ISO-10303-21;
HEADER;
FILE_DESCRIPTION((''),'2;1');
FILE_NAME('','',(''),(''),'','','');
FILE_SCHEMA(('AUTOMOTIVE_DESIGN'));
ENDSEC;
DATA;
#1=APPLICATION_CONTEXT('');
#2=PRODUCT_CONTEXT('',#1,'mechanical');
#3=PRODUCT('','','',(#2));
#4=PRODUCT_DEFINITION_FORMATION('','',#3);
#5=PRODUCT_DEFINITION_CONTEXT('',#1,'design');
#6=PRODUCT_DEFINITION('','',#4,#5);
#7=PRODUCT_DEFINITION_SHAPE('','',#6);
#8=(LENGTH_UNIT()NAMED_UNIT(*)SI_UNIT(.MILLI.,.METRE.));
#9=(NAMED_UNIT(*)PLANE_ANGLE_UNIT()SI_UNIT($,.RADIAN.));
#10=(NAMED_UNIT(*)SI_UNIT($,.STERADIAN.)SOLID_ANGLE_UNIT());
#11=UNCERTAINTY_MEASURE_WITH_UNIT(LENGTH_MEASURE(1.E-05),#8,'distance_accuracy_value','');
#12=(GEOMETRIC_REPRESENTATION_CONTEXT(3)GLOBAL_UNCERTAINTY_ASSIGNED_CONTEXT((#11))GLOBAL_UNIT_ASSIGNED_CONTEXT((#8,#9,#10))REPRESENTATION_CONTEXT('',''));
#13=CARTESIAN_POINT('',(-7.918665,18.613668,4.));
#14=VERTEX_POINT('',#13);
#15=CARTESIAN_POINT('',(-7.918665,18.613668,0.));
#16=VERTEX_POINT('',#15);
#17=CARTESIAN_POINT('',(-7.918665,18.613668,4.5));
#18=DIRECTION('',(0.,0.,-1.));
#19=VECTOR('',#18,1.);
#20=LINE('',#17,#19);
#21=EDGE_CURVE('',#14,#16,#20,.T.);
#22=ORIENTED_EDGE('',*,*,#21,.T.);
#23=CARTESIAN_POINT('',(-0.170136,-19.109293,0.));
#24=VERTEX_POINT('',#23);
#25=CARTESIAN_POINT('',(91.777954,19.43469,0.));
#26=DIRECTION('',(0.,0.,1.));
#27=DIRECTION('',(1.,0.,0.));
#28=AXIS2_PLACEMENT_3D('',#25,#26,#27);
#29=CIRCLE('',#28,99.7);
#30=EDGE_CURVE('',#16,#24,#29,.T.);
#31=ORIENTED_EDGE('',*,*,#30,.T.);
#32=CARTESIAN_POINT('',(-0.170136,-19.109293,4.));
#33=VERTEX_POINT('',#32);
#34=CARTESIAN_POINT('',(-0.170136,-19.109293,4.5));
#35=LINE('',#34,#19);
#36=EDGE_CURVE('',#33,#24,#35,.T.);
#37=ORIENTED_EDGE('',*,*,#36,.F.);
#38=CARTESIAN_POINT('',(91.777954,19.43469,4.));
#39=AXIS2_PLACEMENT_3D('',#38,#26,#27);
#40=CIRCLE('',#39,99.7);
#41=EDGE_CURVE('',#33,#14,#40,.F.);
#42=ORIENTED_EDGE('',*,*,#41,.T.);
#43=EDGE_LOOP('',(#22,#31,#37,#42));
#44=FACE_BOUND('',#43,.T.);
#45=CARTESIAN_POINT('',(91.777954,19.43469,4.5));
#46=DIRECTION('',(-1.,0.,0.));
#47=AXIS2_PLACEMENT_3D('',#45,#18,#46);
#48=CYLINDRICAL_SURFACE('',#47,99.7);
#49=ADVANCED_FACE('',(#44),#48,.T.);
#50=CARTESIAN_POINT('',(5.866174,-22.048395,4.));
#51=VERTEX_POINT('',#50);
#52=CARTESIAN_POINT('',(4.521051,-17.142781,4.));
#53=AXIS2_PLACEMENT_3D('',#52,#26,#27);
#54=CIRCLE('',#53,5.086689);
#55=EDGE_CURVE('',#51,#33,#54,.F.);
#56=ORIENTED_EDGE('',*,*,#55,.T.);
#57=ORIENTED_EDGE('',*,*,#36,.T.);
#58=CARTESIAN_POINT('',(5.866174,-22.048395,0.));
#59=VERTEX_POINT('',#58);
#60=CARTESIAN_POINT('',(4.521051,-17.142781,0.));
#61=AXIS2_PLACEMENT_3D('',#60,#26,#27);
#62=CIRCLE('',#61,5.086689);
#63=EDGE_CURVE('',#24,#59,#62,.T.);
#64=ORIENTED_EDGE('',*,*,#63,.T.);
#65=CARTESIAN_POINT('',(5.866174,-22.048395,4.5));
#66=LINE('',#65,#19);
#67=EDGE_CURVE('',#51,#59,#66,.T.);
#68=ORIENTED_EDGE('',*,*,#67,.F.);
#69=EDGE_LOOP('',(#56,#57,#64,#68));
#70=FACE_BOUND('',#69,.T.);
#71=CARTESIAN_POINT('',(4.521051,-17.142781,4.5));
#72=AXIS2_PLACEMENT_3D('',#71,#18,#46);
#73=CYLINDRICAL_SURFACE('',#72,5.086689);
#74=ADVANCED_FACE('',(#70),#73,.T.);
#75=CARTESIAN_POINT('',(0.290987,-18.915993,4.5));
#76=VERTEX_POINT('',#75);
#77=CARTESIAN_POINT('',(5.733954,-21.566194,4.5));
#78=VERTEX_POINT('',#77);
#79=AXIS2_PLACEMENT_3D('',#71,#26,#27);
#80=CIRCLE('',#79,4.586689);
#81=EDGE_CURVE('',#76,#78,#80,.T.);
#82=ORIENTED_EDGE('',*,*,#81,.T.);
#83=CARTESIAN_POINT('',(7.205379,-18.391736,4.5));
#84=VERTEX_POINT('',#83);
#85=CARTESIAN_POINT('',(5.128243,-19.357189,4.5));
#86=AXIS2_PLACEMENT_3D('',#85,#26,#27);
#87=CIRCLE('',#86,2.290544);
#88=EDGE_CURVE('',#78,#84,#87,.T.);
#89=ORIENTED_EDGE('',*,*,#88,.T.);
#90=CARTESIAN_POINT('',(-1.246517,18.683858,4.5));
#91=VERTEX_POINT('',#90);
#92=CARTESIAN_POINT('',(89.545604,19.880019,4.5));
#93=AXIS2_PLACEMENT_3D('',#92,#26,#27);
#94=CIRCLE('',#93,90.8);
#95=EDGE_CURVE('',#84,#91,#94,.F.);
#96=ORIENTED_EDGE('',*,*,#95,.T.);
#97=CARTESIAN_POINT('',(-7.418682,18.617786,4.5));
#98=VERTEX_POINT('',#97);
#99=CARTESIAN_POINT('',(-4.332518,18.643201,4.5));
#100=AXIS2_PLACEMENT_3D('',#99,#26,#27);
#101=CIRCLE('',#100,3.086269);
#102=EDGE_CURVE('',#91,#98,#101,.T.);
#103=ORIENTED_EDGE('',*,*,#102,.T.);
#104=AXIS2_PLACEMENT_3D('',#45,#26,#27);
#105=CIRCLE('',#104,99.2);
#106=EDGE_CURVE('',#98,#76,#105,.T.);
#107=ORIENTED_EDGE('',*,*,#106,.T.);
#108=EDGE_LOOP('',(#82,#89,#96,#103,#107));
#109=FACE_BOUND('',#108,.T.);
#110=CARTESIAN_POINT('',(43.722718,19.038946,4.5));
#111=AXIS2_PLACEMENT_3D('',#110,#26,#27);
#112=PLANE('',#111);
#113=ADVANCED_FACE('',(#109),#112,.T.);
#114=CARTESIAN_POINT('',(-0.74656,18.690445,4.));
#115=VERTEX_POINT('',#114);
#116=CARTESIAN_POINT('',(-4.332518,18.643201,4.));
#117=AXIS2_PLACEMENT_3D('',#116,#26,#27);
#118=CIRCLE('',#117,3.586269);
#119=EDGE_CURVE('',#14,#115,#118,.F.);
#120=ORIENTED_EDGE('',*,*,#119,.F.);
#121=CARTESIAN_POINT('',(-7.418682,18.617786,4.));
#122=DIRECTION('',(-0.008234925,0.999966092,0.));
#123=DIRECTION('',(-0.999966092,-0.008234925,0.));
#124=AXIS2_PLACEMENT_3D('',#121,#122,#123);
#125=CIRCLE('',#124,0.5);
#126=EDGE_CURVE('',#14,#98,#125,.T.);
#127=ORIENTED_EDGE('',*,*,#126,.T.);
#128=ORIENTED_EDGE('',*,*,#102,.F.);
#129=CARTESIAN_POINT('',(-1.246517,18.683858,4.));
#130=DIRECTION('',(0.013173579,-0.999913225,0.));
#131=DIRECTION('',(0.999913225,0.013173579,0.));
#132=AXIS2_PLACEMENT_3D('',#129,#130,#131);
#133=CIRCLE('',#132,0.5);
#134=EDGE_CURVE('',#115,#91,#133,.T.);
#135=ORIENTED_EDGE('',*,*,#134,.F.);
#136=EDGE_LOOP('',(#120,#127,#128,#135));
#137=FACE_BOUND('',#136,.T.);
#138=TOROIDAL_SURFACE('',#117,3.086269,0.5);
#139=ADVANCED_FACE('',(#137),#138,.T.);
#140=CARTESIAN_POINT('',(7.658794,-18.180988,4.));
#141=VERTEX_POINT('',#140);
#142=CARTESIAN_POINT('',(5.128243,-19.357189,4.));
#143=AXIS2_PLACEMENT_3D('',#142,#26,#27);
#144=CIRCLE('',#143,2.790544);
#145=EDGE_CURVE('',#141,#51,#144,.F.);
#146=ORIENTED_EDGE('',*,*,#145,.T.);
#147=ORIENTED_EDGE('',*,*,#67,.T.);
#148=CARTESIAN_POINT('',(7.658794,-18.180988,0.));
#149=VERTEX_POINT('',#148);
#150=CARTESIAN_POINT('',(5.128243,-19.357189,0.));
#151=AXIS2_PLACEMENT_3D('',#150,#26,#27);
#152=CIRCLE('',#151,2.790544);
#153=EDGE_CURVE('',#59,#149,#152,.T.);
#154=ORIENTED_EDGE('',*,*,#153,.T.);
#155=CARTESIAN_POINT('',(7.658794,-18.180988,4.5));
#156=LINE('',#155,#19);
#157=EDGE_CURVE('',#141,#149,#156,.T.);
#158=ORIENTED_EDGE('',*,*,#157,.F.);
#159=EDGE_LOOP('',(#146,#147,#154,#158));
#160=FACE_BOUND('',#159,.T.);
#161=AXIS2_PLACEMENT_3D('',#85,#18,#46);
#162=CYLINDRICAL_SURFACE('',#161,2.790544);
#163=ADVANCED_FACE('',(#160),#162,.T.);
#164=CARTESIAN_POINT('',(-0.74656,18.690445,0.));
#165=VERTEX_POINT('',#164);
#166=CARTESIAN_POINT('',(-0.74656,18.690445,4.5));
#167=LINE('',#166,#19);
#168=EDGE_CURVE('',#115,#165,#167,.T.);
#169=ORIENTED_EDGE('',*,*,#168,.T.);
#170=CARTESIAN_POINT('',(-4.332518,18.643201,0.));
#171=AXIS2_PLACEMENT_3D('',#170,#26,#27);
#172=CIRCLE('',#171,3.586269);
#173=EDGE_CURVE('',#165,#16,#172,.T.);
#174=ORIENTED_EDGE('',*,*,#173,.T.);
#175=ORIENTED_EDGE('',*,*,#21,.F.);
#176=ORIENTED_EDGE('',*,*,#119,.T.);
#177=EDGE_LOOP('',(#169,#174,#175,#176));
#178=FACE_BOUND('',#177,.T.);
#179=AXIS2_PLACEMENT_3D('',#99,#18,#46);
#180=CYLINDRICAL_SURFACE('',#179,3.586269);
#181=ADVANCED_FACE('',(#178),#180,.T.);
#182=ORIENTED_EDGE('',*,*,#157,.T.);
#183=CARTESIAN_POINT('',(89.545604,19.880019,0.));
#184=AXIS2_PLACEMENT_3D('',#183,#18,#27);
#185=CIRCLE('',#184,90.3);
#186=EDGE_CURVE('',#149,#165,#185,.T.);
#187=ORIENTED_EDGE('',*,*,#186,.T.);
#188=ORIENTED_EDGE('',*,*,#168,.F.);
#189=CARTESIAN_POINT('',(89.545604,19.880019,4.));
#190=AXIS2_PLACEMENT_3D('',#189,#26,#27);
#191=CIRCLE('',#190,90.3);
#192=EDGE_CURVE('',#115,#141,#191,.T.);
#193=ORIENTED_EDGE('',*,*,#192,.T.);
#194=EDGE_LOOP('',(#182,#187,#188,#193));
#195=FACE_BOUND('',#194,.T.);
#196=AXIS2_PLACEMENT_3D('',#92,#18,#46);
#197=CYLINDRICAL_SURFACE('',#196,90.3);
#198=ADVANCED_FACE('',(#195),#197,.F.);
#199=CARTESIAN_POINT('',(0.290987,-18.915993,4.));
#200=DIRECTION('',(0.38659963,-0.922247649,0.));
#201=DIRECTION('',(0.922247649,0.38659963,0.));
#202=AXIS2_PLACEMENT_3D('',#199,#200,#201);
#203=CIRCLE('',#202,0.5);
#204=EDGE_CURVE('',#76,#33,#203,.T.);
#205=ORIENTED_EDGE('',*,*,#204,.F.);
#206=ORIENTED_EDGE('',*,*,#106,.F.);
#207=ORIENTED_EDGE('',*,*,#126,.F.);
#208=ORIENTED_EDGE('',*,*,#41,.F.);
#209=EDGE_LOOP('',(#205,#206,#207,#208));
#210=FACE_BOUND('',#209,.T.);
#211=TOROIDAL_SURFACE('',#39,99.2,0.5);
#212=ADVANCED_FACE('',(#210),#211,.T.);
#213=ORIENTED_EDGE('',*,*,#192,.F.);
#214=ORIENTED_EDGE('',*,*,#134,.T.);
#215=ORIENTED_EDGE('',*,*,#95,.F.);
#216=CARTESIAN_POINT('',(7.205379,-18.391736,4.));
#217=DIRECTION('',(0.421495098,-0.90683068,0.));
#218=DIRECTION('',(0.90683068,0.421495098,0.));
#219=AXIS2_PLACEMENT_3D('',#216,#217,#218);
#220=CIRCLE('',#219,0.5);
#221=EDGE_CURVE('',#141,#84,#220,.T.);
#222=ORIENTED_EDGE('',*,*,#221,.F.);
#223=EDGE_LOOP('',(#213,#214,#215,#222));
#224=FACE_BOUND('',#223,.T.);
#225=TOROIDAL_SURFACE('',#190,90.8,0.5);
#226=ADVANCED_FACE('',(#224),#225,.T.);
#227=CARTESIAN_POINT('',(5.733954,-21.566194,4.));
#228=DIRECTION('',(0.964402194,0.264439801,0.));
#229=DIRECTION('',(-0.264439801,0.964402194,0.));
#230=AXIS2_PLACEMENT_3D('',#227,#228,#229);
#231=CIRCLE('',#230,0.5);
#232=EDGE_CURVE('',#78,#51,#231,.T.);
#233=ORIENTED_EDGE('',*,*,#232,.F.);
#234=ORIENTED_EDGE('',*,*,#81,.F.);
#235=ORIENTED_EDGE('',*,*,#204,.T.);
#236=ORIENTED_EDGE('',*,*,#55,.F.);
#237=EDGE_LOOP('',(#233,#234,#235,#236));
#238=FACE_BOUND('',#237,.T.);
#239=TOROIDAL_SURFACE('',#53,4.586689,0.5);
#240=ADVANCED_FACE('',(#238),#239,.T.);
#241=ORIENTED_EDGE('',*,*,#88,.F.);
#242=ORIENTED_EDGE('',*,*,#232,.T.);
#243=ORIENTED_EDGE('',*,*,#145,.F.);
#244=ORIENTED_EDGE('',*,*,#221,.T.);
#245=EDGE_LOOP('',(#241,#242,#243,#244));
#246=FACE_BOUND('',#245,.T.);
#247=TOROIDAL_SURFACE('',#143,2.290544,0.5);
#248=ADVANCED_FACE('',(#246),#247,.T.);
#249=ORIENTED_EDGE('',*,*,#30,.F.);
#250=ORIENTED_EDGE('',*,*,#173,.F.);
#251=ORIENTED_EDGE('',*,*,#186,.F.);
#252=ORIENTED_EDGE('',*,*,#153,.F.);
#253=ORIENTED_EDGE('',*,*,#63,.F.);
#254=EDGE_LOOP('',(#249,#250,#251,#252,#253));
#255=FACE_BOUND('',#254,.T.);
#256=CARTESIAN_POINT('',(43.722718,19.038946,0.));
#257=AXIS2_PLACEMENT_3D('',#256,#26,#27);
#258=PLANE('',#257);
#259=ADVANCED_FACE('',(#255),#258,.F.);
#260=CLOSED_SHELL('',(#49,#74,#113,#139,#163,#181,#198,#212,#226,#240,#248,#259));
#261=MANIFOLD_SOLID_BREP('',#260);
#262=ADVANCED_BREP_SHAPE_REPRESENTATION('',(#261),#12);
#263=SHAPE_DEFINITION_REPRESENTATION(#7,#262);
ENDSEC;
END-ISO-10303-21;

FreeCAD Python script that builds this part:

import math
import FreeCAD as App
import Part
import Sketcher

V = App.Vector


def edges_at(feature, points):
    """Names of the edges that pass closest to the given points."""
    edges = feature.Shape.Edges
    near = lambda p: min(range(len(edges)), key=lambda i: edges[i].distToShape(Part.Vertex(*p))[0])
    return sorted({f"Edge{near(p) + 1}" for p in points})

doc = App.newDocument("Part")
params = doc.addObject("Spreadsheet::Sheet", "Params")
for row, (alias, value) in enumerate([
    ("sketch1_radius", "90.3 mm"),
    ("sketch1_radius2", "99.7 mm"),
    ("pad1_length", "4.5 mm"),
    ("fillet_radius", "0.5 mm"),
], start=1):
    params.set(f"A{row}", alias)
    params.set(f"B{row}", "=" + value)
    params.setAlias(f"B{row}", alias)

body = doc.addObject("PartDesign::Body", "Body")

sketch1 = doc.addObject("Sketcher::SketchObject", "Sketch")
body.addObject(sketch1)
sketch1.AttachmentSupport = (doc.XY_Plane, [""])
sketch1.MapMode = "FlatFace"
sketch1.addGeometry([
    Part.ArcOfCircle(Part.Circle(V(89.5, 19.9, 0), V(0, 0, 1), 90.3), math.radians(-179), math.radians(-155)),
    Part.ArcOfCircle(Part.Circle(V(-4.3, 18.6, 0), V(0, 0, 1), 3.6), math.radians(1), math.radians(180)),
    Part.ArcOfCircle(Part.Circle(V(91.8, 19.4, 0), V(0, 0, 1), 99.7), math.radians(-180), math.radians(-157)),
    Part.ArcOfCircle(Part.Circle(V(4.5, -17.1, 0), V(0, 0, 1), 5.1), math.radians(-157), math.radians(-75)),
    Part.ArcOfCircle(Part.Circle(V(5.1, -19.4, 0), V(0, 0, 1), 2.8), math.radians(-75), math.radians(25)),
], False)
sketch1.addConstraint([
    Sketcher.Constraint("Tangent", 0, 1, 1, 1),
    Sketcher.Constraint("Tangent", 1, 2, 2, 1),
    Sketcher.Constraint("Tangent", 2, 2, 3, 1),
    Sketcher.Constraint("Tangent", 3, 2, 4, 1),
    Sketcher.Constraint("Tangent", 4, 2, 0, 2),
    Sketcher.Constraint("Radius", 0, 90.3),
    Sketcher.Constraint("Radius", 2, 99.7),
    Sketcher.Constraint("Radius", 1, 3.586269),
    Sketcher.Constraint("Radius", 3, 5.086689),
    Sketcher.Constraint("Radius", 4, 2.790544),
    Sketcher.Constraint("DistanceY", -1, 1, 1, 3, 18.643201),
    Sketcher.Constraint("DistanceY", 3, 3, 0, 3, 37.0228),
    Sketcher.Constraint("DistanceY", -1, 1, 0, 3, 19.880019),
    Sketcher.Constraint("DistanceY", -1, 1, 2, 3, 19.43469),
    Sketcher.Constraint("DistanceX", -1, 1, 3, 3, 4.521051),
])
sketch1.setExpression("Constraints[5]", "Params.sketch1_radius")
sketch1.setExpression("Constraints[6]", "Params.sketch1_radius2")
pad1 = doc.addObject("PartDesign::Pad", "Pad")
body.addObject(pad1)
pad1.Profile = sketch1
pad1.setExpression("Length", "Params.pad1_length")
doc.recompute()

fillet = doc.addObject("PartDesign::Fillet", "Fillet")
body.addObject(fillet)
fillet.Base = (pad1, edges_at(pad1, [
    (2.294, -21.716, 4.5),
    (7.66, -20.531, 4.5),
    (1.504, -0.19, 4.5),
    (-4.371, 22.229, 4.5),
    (-5.883, -0.625, 4.5),
]))
fillet.setExpression("Radius", "Params.fillet_radius")

doc.recompute()
